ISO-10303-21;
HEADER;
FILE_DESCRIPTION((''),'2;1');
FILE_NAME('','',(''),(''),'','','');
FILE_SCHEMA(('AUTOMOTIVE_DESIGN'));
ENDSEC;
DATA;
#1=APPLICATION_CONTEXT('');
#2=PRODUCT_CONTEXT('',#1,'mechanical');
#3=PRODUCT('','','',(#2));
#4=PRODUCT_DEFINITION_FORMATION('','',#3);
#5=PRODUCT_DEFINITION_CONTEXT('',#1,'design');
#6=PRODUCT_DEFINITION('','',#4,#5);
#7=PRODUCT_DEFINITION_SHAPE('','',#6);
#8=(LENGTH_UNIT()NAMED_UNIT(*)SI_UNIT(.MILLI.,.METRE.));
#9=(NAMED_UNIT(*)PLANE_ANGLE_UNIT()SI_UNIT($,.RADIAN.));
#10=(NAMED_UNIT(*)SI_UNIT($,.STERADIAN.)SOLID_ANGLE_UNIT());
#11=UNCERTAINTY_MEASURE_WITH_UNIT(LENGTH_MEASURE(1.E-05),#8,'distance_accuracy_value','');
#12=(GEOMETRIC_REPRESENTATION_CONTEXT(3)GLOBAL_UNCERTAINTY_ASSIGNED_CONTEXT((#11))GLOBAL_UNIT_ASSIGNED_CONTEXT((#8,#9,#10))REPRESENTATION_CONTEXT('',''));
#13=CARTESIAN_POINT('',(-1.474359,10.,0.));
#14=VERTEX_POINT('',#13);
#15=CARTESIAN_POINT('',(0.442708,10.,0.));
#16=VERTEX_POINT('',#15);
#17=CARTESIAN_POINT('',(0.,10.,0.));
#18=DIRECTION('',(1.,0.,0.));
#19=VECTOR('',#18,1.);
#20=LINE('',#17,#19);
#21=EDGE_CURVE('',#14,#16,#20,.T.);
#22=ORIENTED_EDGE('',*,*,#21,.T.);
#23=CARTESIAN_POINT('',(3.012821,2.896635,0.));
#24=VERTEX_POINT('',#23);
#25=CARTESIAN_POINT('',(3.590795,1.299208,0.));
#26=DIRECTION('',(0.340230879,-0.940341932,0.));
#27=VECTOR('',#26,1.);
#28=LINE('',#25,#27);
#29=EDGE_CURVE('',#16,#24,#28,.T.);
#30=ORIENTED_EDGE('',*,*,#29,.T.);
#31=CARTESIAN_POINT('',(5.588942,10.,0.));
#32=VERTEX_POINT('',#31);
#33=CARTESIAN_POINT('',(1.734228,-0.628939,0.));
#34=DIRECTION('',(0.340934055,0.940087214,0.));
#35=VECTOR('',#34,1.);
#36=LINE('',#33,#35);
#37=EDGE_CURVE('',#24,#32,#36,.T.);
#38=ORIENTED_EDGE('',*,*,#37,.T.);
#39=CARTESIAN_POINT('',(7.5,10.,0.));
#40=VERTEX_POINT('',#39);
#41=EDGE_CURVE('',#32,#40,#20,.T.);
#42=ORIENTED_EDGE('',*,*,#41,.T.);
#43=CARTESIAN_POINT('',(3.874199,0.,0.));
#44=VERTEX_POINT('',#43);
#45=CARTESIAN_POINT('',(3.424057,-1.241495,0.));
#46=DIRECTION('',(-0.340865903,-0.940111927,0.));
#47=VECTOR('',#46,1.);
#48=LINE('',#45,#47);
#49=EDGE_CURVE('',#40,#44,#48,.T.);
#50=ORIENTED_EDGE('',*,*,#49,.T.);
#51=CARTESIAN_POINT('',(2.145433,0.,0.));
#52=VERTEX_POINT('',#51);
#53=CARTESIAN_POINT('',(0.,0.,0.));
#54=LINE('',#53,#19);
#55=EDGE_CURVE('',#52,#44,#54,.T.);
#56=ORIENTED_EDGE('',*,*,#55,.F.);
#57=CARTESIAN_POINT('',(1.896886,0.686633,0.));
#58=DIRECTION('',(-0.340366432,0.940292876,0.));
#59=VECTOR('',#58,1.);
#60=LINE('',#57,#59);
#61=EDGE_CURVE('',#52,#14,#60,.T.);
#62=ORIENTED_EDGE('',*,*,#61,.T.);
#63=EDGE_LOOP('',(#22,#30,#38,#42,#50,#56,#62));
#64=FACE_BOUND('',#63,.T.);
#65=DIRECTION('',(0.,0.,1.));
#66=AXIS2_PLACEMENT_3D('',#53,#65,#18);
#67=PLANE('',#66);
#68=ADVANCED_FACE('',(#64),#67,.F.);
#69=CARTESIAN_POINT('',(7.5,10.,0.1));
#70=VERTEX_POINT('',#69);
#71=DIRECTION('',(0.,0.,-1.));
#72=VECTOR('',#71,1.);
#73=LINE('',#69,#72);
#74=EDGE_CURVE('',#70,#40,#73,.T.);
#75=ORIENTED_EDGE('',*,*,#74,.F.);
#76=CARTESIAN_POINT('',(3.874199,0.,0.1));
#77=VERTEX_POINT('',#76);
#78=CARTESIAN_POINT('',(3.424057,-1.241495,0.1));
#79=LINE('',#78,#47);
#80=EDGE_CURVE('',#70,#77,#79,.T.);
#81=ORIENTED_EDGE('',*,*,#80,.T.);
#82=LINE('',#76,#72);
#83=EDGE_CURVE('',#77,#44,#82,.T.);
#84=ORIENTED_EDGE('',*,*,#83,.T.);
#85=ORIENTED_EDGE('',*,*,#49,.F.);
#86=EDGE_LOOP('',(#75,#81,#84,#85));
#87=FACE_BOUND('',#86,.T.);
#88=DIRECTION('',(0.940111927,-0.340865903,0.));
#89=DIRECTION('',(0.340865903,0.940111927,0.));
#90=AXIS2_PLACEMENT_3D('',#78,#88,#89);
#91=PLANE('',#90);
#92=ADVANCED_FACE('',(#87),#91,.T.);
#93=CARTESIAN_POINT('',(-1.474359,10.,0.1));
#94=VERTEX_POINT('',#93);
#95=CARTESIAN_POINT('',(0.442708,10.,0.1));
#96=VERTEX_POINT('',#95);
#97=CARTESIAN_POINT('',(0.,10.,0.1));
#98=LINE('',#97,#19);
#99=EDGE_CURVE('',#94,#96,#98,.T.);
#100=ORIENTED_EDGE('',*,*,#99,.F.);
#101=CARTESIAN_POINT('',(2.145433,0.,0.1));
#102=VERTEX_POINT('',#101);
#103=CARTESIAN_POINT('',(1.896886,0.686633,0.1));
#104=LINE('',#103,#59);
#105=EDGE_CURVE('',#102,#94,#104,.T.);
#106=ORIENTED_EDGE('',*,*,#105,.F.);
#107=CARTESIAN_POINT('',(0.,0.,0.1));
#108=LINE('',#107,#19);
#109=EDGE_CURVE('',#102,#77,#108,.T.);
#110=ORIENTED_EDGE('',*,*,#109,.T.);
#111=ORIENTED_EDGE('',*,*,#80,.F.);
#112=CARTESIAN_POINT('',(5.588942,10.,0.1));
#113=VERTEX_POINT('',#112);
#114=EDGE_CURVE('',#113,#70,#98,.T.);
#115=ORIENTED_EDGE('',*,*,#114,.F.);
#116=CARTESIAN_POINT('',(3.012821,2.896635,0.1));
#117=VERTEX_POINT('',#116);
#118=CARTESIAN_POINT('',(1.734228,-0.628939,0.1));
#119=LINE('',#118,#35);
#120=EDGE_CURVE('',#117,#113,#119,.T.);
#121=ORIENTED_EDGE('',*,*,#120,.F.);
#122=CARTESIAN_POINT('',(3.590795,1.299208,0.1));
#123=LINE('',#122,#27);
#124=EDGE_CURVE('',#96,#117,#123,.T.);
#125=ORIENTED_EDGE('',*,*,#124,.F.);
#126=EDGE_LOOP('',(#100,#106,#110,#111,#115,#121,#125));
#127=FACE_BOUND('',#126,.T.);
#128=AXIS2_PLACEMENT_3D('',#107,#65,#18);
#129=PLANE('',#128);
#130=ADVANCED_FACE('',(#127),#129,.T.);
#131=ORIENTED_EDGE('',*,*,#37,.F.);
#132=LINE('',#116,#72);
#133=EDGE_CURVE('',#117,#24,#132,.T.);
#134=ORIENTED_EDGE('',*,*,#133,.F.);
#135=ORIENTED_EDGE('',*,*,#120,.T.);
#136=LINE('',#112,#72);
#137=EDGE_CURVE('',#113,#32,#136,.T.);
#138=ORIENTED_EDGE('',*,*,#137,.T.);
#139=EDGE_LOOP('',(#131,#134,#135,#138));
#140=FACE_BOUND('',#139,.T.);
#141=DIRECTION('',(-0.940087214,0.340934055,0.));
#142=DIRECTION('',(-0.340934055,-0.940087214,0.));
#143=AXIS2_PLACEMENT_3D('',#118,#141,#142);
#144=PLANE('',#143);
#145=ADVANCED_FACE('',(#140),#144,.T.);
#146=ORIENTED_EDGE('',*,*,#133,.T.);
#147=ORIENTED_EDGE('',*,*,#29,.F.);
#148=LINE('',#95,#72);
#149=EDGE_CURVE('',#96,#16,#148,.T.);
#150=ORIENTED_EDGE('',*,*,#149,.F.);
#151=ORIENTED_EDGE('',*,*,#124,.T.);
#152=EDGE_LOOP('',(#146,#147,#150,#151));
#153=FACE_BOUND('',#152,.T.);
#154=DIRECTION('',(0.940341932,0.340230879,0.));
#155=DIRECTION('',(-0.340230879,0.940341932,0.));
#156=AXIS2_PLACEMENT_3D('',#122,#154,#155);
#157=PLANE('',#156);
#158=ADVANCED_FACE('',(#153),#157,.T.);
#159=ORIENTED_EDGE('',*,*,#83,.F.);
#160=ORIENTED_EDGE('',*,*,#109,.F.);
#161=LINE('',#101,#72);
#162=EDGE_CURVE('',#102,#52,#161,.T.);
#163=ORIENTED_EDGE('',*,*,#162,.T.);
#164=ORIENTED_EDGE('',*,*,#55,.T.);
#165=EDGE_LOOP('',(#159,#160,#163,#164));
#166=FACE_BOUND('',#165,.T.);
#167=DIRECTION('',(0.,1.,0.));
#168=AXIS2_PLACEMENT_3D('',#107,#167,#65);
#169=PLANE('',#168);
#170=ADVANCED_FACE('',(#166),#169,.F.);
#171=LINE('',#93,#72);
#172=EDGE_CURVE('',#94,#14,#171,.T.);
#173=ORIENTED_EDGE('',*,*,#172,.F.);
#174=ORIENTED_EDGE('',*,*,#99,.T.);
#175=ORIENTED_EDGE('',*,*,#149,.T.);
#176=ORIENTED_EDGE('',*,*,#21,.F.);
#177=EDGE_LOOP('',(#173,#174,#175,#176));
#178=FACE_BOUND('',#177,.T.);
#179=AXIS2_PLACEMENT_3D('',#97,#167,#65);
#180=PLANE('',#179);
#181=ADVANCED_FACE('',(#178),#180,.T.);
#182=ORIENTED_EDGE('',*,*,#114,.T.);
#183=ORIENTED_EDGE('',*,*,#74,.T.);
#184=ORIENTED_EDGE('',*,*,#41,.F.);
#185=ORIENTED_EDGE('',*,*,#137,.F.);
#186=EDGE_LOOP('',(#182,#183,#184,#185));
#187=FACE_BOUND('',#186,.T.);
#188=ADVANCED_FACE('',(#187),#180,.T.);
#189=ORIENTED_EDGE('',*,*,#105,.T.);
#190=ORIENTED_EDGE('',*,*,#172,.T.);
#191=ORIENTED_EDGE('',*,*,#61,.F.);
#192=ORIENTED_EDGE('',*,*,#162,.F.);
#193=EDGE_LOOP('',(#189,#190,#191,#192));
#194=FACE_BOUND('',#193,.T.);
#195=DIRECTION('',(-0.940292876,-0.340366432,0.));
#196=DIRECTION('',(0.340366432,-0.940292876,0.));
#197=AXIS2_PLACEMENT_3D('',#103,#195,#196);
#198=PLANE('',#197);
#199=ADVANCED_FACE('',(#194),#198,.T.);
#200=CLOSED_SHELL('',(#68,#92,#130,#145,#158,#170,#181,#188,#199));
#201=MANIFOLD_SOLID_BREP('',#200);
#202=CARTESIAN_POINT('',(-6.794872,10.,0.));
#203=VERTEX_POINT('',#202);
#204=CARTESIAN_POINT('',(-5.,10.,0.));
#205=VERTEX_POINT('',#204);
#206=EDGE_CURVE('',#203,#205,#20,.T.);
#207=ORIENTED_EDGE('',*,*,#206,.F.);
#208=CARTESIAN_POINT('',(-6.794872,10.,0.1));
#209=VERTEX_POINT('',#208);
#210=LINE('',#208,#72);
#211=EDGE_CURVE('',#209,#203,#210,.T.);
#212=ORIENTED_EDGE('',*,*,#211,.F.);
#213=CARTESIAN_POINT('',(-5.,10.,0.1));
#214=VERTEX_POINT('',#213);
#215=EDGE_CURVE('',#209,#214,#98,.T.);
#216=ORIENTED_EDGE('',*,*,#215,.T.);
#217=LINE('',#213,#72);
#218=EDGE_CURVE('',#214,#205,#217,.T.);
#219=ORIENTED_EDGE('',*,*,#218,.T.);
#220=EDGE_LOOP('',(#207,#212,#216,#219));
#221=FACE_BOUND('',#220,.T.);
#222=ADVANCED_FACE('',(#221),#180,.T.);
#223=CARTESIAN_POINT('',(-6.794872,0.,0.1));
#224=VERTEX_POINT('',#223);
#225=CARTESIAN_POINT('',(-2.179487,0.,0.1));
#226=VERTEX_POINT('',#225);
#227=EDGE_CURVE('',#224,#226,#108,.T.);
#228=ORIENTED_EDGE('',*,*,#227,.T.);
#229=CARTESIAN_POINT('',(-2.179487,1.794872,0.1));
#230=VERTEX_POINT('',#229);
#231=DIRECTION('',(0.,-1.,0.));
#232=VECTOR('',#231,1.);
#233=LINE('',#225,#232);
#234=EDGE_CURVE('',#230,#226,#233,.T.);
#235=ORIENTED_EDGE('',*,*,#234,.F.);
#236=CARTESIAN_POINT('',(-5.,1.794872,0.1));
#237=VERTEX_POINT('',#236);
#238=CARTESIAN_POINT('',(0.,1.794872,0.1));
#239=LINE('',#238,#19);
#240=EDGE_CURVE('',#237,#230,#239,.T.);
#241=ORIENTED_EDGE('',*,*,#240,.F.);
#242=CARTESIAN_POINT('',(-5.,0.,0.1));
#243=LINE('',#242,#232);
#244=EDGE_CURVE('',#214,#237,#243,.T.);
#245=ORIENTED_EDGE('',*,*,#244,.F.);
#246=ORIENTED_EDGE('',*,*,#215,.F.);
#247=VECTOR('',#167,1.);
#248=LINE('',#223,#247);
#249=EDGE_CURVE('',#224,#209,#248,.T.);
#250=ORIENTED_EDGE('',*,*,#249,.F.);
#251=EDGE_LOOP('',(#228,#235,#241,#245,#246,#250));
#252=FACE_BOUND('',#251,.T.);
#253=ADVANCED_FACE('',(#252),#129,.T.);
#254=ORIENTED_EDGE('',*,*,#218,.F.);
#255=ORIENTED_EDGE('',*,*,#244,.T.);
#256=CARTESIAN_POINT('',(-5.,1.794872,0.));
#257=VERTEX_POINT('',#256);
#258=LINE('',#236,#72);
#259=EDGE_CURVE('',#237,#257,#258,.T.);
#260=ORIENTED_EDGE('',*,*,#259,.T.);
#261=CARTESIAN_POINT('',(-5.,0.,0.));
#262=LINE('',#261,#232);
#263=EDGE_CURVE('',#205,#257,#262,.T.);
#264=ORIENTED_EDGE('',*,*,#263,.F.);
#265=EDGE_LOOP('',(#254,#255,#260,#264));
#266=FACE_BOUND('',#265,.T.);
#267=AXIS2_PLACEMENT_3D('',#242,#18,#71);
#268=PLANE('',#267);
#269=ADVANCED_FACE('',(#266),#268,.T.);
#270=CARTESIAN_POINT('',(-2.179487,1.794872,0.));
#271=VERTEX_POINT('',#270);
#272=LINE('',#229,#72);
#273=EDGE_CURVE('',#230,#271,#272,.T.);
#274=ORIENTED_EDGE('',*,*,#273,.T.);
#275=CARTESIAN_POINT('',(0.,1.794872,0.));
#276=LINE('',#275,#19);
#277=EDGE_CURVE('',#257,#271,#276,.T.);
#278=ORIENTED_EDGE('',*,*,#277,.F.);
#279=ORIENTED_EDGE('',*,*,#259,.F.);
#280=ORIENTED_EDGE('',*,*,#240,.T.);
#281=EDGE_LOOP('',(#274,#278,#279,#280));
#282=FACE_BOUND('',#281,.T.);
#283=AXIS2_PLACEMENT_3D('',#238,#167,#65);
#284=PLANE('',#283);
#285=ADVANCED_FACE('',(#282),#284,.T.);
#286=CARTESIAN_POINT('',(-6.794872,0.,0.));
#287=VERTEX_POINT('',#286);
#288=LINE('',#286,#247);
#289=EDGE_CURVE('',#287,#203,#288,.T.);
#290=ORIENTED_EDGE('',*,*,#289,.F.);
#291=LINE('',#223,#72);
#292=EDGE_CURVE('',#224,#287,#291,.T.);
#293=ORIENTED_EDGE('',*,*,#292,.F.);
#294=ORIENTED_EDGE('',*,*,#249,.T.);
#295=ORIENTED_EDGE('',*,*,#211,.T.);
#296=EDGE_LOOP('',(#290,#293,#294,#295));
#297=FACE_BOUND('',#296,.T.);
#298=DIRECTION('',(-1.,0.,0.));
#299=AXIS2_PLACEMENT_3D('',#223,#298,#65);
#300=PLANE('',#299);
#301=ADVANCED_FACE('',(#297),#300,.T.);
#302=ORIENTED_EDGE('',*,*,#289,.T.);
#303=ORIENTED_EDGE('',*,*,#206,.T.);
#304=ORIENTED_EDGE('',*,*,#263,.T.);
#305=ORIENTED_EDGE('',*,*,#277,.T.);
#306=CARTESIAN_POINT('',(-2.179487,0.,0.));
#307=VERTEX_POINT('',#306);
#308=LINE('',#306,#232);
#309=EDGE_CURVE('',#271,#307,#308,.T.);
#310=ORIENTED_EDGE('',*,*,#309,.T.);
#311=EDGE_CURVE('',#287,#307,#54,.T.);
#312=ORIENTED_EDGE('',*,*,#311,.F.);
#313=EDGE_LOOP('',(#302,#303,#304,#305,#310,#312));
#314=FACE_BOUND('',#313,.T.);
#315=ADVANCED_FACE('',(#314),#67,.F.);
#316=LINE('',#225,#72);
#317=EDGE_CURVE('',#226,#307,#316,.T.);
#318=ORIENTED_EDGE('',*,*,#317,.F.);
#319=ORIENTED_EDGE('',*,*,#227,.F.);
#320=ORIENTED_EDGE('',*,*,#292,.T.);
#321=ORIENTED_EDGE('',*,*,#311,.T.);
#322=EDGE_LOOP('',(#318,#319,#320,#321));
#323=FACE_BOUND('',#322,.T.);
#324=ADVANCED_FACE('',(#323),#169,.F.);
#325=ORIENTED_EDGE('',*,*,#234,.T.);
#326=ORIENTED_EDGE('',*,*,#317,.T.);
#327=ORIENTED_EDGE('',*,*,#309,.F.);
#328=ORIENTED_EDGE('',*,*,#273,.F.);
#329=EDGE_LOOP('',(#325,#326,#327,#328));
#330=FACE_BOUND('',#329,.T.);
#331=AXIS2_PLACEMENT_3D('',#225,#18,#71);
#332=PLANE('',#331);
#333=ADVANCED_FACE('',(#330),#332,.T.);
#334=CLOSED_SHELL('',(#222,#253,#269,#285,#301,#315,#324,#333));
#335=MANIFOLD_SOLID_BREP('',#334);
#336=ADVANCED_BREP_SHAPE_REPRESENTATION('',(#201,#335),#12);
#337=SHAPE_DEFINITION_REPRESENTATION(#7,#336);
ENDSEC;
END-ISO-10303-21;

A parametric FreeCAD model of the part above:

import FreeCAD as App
import Part
import Sketcher

V = App.Vector


def add_polygon(sketch, points):
    """Adds a closed chain of lines whose ends are joined by coincident constraints."""
    first, n = sketch.GeometryCount, len(points)
    for a, b in zip(points, points[1:] + points[:1]):
        sketch.addGeometry(Part.LineSegment(App.Vector(*a, 0), App.Vector(*b, 0)), False)
    for i in range(n):
        sketch.addConstraint(Sketcher.Constraint("Coincident", first + i, 2, first + (i + 1) % n, 1))

doc = App.newDocument("Part")
body = doc.addObject("PartDesign::Body", "Body")

# Sketch on XY plane
sketch1 = body.newObject("Sketcher::SketchObject", "Sketch")
sketch1.AttachmentSupport = (doc.getObject("XY_Plane"), [""])
sketch1.MapMode = "FlatFace"
add_polygon(sketch1, [(-6.794872, 10), (-6.794872, 0), (-2.179487, 0), (-2.179487, 1.794872), (-5, 1.794872), (-5, 10)])  # lines 0-5
sketch1.addConstraint(Sketcher.Constraint("Vertical", 0))
sketch1.addConstraint(Sketcher.Constraint("Horizontal", 1))
sketch1.addConstraint(Sketcher.Constraint("Vertical", 2))
sketch1.addConstraint(Sketcher.Constraint("Horizontal", 3))
sketch1.addConstraint(Sketcher.Constraint("Vertical", 4))
sketch1.addConstraint(Sketcher.Constraint("Horizontal", 5))
sketch1.addConstraint(Sketcher.Constraint("PointOnObject", 0, 2, -1))
sketch1.addConstraint(Sketcher.Constraint("Equal", 5, 2))
sketch1.addConstraint(Sketcher.Constraint("DistanceY", 0, 2, 0, 1, 10.0))
sketch1.addConstraint(Sketcher.Constraint("DistanceX", 3, 2, -1, 1, 5.0))
sketch1.addConstraint(Sketcher.Constraint("DistanceX", 5, 2, 5, 1, 1.794872))
sketch1.addConstraint(Sketcher.Constraint("DistanceX", 1, 1, 1, 2, 4.615385))
pad1 = body.newObject("PartDesign::Pad", "Pad")
pad1.Profile = sketch1
pad1.Length = 0.1
body2 = doc.addObject("PartDesign::Body", "Body001")

# Sketch on XY plane
sketch2 = body2.newObject("Sketcher::SketchObject", "Sketch001")
sketch2.AttachmentSupport = (doc.getObject("XY_Plane001"), [""])
sketch2.MapMode = "FlatFace"
add_polygon(sketch2, [(-1.474359, 10), (2.145433, 0), (3.874199, 0), (7.5, 10), (5.588942, 10), (3.012821, 2.896635), (0.442708, 10)])  # lines 0-6
sketch2.addConstraint(Sketcher.Constraint("Horizontal", 1))
sketch2.addConstraint(Sketcher.Constraint("Horizontal", 3))
sketch2.addConstraint(Sketcher.Constraint("Horizontal", 6))
sketch2.addConstraint(Sketcher.Constraint("PointOnObject", 0, 2, -1))
sketch2.addConstraint(Sketcher.Constraint("Horizontal", 3, 2, 5, 2))
sketch2.addConstraint(Sketcher.Constraint("DistanceY", -1, 1, 2, 2, 10.0))
sketch2.addConstraint(Sketcher.Constraint("DistanceX", -1, 1, 2, 2, 7.5))
sketch2.addConstraint(Sketcher.Constraint("DistanceX", -1, 1, 1, 2, 3.874199))
sketch2.addConstraint(Sketcher.Constraint("DistanceX", 6, 2, 3, 2, 7.063301))
sketch2.addConstraint(Sketcher.Constraint("Distance", 4, 7.556071))
sketch2.addConstraint(Sketcher.Constraint("DistanceX", 1, 1, 1, 2, 1.728766))
sketch2.addConstraint(Sketcher.Constraint("DistanceX", 3, 2, 3, 1, 1.911058))
sketch2.addConstraint(Sketcher.Constraint("DistanceX", 6, 2, 6, 1, 1.917067))
sketch2.addConstraint(Sketcher.Constraint("DistanceX", -1, 1, 4, 2, 3.012821))
pad2 = body2.newObject("PartDesign::Pad", "Pad001")
pad2.Profile = sketch2
pad2.Length = 0.1

doc.recompute()
